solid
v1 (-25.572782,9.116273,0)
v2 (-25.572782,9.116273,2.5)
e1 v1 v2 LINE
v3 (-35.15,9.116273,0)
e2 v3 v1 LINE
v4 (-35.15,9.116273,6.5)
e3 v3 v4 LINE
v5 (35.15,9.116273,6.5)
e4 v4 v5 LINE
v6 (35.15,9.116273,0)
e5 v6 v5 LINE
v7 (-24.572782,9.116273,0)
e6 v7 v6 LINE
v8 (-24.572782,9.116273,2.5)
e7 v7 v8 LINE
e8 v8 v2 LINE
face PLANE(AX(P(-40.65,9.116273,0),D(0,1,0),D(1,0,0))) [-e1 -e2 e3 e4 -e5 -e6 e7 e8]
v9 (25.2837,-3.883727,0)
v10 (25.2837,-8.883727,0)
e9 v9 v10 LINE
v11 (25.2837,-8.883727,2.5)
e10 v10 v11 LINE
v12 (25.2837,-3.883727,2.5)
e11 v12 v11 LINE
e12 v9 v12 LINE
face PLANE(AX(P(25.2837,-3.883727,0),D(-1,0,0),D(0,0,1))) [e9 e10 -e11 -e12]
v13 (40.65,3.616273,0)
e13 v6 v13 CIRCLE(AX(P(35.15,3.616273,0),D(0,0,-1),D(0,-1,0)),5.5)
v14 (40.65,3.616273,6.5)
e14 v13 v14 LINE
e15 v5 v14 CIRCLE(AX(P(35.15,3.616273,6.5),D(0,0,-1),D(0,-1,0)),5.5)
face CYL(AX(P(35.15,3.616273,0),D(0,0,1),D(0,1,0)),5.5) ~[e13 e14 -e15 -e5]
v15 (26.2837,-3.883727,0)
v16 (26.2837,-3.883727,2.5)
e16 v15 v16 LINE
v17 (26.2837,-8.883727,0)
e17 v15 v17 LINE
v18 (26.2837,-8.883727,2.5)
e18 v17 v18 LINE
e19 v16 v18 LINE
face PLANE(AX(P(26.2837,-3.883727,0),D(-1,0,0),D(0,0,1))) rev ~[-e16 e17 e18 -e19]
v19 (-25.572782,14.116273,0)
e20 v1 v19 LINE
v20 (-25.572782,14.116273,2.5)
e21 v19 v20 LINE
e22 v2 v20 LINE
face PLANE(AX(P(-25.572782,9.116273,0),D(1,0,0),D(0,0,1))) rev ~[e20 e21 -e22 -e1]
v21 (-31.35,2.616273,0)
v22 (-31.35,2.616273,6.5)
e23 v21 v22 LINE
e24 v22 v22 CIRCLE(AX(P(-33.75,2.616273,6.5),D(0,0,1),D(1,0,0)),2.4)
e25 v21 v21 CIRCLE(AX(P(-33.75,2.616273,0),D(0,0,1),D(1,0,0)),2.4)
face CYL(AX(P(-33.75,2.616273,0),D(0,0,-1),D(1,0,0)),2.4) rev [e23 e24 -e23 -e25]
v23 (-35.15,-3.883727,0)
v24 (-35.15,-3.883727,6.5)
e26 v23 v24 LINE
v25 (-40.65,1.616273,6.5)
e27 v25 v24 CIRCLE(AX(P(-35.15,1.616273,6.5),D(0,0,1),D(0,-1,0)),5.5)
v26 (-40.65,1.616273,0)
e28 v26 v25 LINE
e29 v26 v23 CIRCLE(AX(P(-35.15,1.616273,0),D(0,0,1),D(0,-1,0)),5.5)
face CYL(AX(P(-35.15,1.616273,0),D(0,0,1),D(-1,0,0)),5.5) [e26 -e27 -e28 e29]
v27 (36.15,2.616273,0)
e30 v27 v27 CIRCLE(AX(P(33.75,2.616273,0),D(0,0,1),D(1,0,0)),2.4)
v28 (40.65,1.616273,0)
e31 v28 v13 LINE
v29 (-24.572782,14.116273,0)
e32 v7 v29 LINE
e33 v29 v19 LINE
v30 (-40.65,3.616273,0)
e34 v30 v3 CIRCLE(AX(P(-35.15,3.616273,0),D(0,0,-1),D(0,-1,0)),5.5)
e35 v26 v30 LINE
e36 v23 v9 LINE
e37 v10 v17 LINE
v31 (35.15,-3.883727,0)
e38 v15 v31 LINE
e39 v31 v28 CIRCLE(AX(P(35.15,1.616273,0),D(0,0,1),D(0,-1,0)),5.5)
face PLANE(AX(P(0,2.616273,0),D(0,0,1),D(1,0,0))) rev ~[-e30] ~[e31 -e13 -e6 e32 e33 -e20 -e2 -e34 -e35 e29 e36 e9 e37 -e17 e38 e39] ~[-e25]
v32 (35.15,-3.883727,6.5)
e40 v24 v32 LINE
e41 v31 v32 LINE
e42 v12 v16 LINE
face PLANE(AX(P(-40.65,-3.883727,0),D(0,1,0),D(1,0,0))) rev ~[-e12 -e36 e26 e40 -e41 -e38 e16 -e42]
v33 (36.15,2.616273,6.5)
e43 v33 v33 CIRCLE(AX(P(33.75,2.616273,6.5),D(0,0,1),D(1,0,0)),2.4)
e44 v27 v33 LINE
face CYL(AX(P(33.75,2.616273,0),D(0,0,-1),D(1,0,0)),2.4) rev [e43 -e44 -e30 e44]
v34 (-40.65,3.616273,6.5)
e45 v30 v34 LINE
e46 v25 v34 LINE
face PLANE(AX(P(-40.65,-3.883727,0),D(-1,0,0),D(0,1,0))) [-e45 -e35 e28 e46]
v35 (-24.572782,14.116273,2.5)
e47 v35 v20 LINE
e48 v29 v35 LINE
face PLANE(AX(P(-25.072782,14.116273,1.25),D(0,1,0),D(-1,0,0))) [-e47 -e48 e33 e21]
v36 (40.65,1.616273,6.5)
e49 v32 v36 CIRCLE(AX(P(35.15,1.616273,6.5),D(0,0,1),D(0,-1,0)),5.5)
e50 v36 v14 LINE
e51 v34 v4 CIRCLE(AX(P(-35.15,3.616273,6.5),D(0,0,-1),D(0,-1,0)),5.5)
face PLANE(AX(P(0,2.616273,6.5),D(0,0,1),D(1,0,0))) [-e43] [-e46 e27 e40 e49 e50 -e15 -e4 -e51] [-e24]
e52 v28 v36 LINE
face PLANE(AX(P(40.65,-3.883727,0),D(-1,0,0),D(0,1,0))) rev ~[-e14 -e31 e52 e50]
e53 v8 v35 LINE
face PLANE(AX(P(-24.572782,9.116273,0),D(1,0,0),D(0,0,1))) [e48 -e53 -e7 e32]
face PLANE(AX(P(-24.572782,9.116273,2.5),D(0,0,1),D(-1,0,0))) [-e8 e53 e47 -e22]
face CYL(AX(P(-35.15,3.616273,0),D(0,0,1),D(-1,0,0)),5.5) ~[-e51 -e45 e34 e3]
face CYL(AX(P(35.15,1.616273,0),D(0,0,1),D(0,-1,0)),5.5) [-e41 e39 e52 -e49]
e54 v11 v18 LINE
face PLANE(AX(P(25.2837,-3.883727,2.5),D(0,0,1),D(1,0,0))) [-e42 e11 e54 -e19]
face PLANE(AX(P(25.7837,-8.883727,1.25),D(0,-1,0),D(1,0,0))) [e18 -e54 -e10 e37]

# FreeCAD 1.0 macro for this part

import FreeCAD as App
import Part
import Sketcher

V = App.Vector
Q = App.Units.Quantity


def edges_at(feature, points):
    """Names of the edges that pass closest to the given points."""
    edges = feature.Shape.Edges
    near = lambda p: min(range(len(edges)), key=lambda i: edges[i].distToShape(Part.Vertex(*p))[0])
    return sorted({f"Edge{near(p) + 1}" for p in points})


def add_polygon(sketch, points):
    """Adds a closed chain of lines whose ends are joined by coincident constraints."""
    first, n = sketch.GeometryCount, len(points)
    for a, b in zip(points, points[1:] + points[:1]):
        sketch.addGeometry(Part.LineSegment(App.Vector(*a, 0), App.Vector(*b, 0)), False)
    for i in range(n):
        sketch.addConstraint(Sketcher.Constraint("Coincident", first + i, 2, first + (i + 1) % n, 1))

doc = App.newDocument("Part")
params = doc.addObject("Spreadsheet::Sheet", "Params")
for row, (alias, value) in enumerate([
    ("sketch1_diameter", "4.8 mm"),
    ("sketch1_height", "13 mm"),
    ("sketch1_width", "81.3 mm"),
    ("pad1_length", "6.5 mm"),
    ("fillet_radius", "5.5 mm"),
    ("sketch2_width", "1 mm"),
    ("sketch2_height", "2.5 mm"),
    ("pad2_length", "5 mm"),
    ("sketch3_width", "1 mm"),
    ("sketch3_height", "2.5 mm"),
    ("pad3_length", "5 mm"),
], start=1):
    params.set(f"A{row}", alias)
    params.set(f"B{row}", "=" + value)
    params.setAlias(f"B{row}", alias)

body = doc.addObject("PartDesign::Body", "Body")

sketch1 = doc.addObject("Sketcher::SketchObject", "Sketch")
body.addObject(sketch1)
sketch1.AttachmentSupport = (doc.XY_Plane, [""])
sketch1.MapMode = "FlatFace"
add_polygon(sketch1, [(-40.6, 9.1), (-40.6, -3.9), (40.6, -3.9), (40.6, 9.1)])
sketch1.addGeometry(Part.Circle(V(-33.8, 2.6, 0), V(0, 0, 1), 2.4), False)
sketch1.addGeometry(Part.Circle(V(33.8, 2.6, 0), V(0, 0, 1), 2.4), False)
sketch1.addConstraint([
    Sketcher.Constraint("Vertical", 0),
    Sketcher.Constraint("Horizontal", 1),
    Sketcher.Constraint("Vertical", 2),
    Sketcher.Constraint("Horizontal", 3),
    Sketcher.Constraint("Equal", 4, 5),
    Sketcher.Constraint("Symmetric", 4, 3, 5, 3, -2),
    Sketcher.Constraint("Diameter", 4, Q("4.8 mm")),
    Sketcher.Constraint("DistanceY", 0, 2, 0, 1, Q("13 mm")),
    Sketcher.Constraint("DistanceX", 1, 1, 1, 2, Q("81.3 mm")),
    Sketcher.Constraint("DistanceX", 4, 3, 5, 3, Q("67.5 mm")),
    Sketcher.Constraint("DistanceX", 0, 2, 4, 3, Q("6.9 mm")),
    Sketcher.Constraint("DistanceY", 0, 2, 4, 3, Q("6.5 mm")),
    Sketcher.Constraint("DistanceY", -1, 1, 4, 3, Q("2.616273 mm")),
])
sketch1.setExpression("Constraints[10]", "Params.sketch1_diameter")
sketch1.setExpression("Constraints[11]", "Params.sketch1_height")
sketch1.setExpression("Constraints[12]", "Params.sketch1_width")
pad1 = doc.addObject("PartDesign::Pad", "Pad")
body.addObject(pad1)
pad1.Profile = sketch1
pad1.setExpression("Length", "Params.pad1_length")
doc.recompute()

fillet = doc.addObject("PartDesign::Fillet", "Fillet")
body.addObject(fillet)
fillet.Base = (pad1, edges_at(pad1, [
    (-40.65, 9.116, 3.25),
    (-40.65, -3.884, 3.25),
    (40.65, -3.884, 3.25),
    (40.65, 9.116, 3.25),
]))
fillet.setExpression("Radius", "Params.fillet_radius")

sketch2 = doc.addObject("Sketcher::SketchObject", "Sketch001")
body.addObject(sketch2)
sketch2.AttachmentSupport = (doc.XZ_Plane, [""])
sketch2.MapMode = "FlatFace"
sketch2.AttachmentOffset = App.Placement(V(0, 0, 3.883727), App.Rotation())
add_polygon(sketch2, [(25.3, 2.5), (25.3, 0), (26.3, 0), (26.3, 2.5)])
sketch2.addConstraint([
    Sketcher.Constraint("Vertical", 0),
    Sketcher.Constraint("Horizontal", 1),
    Sketcher.Constraint("Vertical", 2),
    Sketcher.Constraint("Horizontal", 3),
    Sketcher.Constraint("PointOnObject", 0, 2, -1),
    Sketcher.Constraint("DistanceX", 1, 1, 1, 2, Q("1 mm")),
    Sketcher.Constraint("DistanceY", 0, 2, 0, 1, Q("2.5 mm")),
    Sketcher.Constraint("DistanceX", -1, 1, 0, 2, Q("25.2837 mm")),
])
sketch2.setExpression("Constraints[9]", "Params.sketch2_width")
sketch2.setExpression("Constraints[10]", "Params.sketch2_height")
pad2 = doc.addObject("PartDesign::Pad", "Pad001")
body.addObject(pad2)
pad2.Profile = sketch2
pad2.setExpression("Length", "Params.pad2_length")

sketch3 = doc.addObject("Sketcher::SketchObject", "Sketch002")
body.addObject(sketch3)
sketch3.AttachmentSupport = (doc.XZ_Plane, [""])
sketch3.MapMode = "FlatFace"
sketch3.AttachmentOffset = App.Placement(V(0, 0, -9.116273), App.Rotation())
add_polygon(sketch3, [(-24.6, 2.5), (-24.6, 0), (-25.6, 0), (-25.6, 2.5)])
sketch3.addConstraint([
    Sketcher.Constraint("Vertical", 0),
    Sketcher.Constraint("Horizontal", 1),
    Sketcher.Constraint("Vertical", 2),
    Sketcher.Constraint("Horizontal", 3),
    Sketcher.Constraint("PointOnObject", 0, 2, -1),
    Sketcher.Constraint("DistanceX", 1, 2, 1, 1, Q("1 mm")),
    Sketcher.Constraint("DistanceY", 0, 2, 0, 1, Q("2.5 mm")),
    Sketcher.Constraint("DistanceX", 0, 2, -1, 1, Q("24.572782 mm")),
])
sketch3.setExpression("Constraints[9]", "Params.sketch3_width")
sketch3.setExpression("Constraints[10]", "Params.sketch3_height")
pad3 = doc.addObject("PartDesign::Pad", "Pad002")
body.addObject(pad3)
pad3.Profile = sketch3
pad3.setExpression("Length", "Params.pad3_length")
pad3.Reversed = True

doc.recompute()
